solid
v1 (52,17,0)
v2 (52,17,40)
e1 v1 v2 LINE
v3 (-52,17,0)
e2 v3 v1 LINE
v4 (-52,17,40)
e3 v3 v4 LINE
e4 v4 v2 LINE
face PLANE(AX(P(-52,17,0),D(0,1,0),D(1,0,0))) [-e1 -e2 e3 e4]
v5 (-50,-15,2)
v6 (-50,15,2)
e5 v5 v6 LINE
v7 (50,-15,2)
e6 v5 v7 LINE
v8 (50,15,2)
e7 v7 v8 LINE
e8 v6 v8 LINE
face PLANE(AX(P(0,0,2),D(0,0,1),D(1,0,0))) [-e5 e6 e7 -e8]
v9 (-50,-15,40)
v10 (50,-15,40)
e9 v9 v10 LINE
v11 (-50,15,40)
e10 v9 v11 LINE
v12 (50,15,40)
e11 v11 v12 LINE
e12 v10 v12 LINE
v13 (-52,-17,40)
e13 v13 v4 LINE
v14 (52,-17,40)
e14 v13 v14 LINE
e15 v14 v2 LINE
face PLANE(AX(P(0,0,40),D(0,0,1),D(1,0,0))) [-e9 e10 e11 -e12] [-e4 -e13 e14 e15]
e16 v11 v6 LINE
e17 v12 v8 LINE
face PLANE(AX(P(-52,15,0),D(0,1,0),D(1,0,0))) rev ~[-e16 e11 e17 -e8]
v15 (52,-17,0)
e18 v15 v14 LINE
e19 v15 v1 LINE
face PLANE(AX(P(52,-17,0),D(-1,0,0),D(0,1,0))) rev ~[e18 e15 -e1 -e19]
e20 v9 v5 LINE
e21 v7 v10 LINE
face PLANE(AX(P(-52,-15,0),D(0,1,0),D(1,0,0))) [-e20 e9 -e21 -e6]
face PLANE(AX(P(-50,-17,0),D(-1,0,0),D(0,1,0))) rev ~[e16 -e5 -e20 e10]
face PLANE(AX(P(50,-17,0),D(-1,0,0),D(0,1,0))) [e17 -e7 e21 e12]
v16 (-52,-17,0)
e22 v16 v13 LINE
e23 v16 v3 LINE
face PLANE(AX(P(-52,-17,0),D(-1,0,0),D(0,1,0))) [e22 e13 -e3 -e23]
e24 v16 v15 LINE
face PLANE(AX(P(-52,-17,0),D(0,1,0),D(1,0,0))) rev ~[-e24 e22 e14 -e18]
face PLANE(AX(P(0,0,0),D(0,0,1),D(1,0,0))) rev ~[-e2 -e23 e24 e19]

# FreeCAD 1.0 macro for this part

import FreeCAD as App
import Part
import Sketcher
from FreeCAD import Vector


def faces_at(feature, points):
    """Names of the faces that lie closest to the given points."""
    faces = feature.Shape.Faces
    near = lambda p: min(range(len(faces)), key=lambda i: faces[i].distToShape(Part.Vertex(*p))[0])
    return sorted({f"Face{near(p) + 1}" for p in points})

doc = App.newDocument("Part")
body = doc.addObject("PartDesign::Body", "Body")

sketch1 = body.newObject("Sketcher::SketchObject", "Sketch")
sketch1.AttachmentSupport = (doc.getObject("XY_Plane"), [""])
sketch1.MapMode = "FlatFace"
sketch1.addGeometry([
    Part.LineSegment(Vector(-52, 17, 0), Vector(-52, -17, 0)),
    Part.LineSegment(Vector(-52, -17, 0), Vector(52, -17, 0)),
    Part.LineSegment(Vector(52, -17, 0), Vector(52, 17, 0)),
    Part.LineSegment(Vector(52, 17, 0), Vector(-52, 17, 0)),
], False)
sketch1.addConstraint([
    Sketcher.Constraint("Coincident", 0, 2, 1, 1),
    Sketcher.Constraint("Coincident", 1, 2, 2, 1),
    Sketcher.Constraint("Coincident", 2, 2, 3, 1),
    Sketcher.Constraint("Coincident", 3, 2, 0, 1),
    Sketcher.Constraint("Vertical", 0),
    Sketcher.Constraint("Horizontal", 1),
    Sketcher.Constraint("Vertical", 2),
    Sketcher.Constraint("Horizontal", 3),
    Sketcher.Constraint("Symmetric", 0, 2, 2, 2, -1, 1),
    Sketcher.Constraint("DistanceX", 1, 1, 1, 2, 104.0),
    Sketcher.Constraint("DistanceY", 0, 2, 0, 1, 34.0),
])
pad1 = body.newObject("PartDesign::Pad", "Pad")
pad1.Profile = sketch1
pad1.Length = 40
doc.recompute()

thickness = body.newObject("PartDesign::Thickness", "Thickness")
thickness.Base = (pad1, faces_at(pad1, [(0, 0, 40)]))
thickness.Value = 2
thickness.Reversed = True
thickness.Join = "Arc"

doc.recompute()
